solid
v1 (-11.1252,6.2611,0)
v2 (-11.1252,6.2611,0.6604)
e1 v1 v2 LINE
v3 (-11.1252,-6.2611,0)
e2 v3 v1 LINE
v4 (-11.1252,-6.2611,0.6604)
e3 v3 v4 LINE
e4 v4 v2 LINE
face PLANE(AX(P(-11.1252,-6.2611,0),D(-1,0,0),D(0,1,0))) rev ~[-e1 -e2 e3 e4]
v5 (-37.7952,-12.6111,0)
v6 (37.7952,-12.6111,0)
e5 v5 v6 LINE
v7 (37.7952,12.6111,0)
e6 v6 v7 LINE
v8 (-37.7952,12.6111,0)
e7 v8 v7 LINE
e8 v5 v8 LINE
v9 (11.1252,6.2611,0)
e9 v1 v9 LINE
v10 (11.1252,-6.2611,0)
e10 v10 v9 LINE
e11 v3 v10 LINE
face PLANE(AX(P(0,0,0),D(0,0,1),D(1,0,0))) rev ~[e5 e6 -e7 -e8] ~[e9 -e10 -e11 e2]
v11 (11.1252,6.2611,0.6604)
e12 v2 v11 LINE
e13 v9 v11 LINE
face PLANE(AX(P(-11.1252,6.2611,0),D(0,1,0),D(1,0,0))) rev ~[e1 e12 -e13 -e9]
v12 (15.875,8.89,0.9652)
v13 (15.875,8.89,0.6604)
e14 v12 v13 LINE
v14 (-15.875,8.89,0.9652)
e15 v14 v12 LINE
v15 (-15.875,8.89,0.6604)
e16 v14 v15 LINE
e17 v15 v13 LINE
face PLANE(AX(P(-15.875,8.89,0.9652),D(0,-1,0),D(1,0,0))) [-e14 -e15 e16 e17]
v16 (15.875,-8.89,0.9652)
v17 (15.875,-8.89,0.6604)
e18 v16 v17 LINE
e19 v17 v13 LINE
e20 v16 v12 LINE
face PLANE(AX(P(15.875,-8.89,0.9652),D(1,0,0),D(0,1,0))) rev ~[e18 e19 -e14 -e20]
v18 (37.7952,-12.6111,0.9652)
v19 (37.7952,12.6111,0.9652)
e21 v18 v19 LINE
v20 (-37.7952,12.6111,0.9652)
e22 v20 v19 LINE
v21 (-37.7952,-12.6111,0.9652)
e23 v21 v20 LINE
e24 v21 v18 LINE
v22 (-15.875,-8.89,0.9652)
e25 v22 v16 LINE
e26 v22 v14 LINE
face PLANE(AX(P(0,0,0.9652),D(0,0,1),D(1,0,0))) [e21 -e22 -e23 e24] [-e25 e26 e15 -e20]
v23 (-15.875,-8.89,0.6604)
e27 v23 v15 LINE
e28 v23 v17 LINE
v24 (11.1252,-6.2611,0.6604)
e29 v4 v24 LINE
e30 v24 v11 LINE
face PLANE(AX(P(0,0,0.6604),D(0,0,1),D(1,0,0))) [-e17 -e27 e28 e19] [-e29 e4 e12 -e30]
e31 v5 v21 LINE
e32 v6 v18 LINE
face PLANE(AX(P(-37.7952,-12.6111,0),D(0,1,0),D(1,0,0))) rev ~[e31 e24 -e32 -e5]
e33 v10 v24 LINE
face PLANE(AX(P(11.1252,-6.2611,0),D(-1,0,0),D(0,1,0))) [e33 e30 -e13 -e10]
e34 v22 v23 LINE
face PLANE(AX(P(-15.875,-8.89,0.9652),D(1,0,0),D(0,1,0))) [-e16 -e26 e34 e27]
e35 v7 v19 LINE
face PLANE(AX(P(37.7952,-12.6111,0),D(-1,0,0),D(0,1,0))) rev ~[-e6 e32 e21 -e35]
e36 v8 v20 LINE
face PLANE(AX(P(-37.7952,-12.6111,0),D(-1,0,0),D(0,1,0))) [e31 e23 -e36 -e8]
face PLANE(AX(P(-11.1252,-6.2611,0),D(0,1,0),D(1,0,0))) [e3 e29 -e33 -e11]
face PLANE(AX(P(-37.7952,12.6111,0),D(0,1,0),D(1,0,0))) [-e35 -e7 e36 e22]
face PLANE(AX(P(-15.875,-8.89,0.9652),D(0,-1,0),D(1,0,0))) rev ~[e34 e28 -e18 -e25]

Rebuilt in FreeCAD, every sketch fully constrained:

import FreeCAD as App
import Part
import Sketcher

V = App.Vector
Q = App.Units.Quantity


def add_polygon(sketch, points):
    """Adds a closed chain of lines whose ends are joined by coincident constraints."""
    first, n = sketch.GeometryCount, len(points)
    for a, b in zip(points, points[1:] + points[:1]):
        sketch.addGeometry(Part.LineSegment(App.Vector(*a, 0), App.Vector(*b, 0)), False)
    for i in range(n):
        sketch.addConstraint(Sketcher.Constraint("Coincident", first + i, 2, first + (i + 1) % n, 1))

doc = App.newDocument("Part")
body = doc.addObject("PartDesign::Body", "Body")

# Sketch on XY plane
sketch1 = doc.addObject("Sketcher::SketchObject", "Sketch")
body.addObject(sketch1)
sketch1.AttachmentSupport = (doc.XY_Plane, [""])
sketch1.MapMode = "FlatFace"
add_polygon(sketch1, [(-37.7952, 12.6111), (-37.7952, -12.6111), (37.7952, -12.6111), (37.7952, 12.6111)])  # lines 0-3
add_polygon(sketch1, [(11.1252, -6.2611), (-11.1252, -6.2611), (-11.1252, 6.2611), (11.1252, 6.2611)])  # lines 4-7
sketch1.addConstraint(Sketcher.Constraint("Vertical", 0))
sketch1.addConstraint(Sketcher.Constraint("Horizontal", 1))
sketch1.addConstraint(Sketcher.Constraint("Vertical", 2))
sketch1.addConstraint(Sketcher.Constraint("Horizontal", 3))
sketch1.addConstraint(Sketcher.Constraint("Horizontal", 4))
sketch1.addConstraint(Sketcher.Constraint("Vertical", 5))
sketch1.addConstraint(Sketcher.Constraint("Horizontal", 6))
sketch1.addConstraint(Sketcher.Constraint("Vertical", 7))
sketch1.addConstraint(Sketcher.Constraint("Symmetric", 0, 2, 2, 2, -1, 1))
sketch1.addConstraint(Sketcher.Constraint("Symmetric", 4, 2, 6, 2, -1, 1))
sketch1.addConstraint(Sketcher.Constraint("DistanceX", 1, 1, 1, 2, Q("2.976 in")))
sketch1.addConstraint(Sketcher.Constraint("DistanceX", 4, 2, 4, 1, Q("0.876 in")))
sketch1.addConstraint(Sketcher.Constraint("DistanceY", 0, 2, 0, 1, Q("0.993 in")))
sketch1.addConstraint(Sketcher.Constraint("DistanceY", 5, 1, 5, 2, Q("0.493 in")))
pad1 = doc.addObject("PartDesign::Pad", "Pad")
body.addObject(pad1)
pad1.Profile = sketch1
pad1.Length = Q("0.038 in")

# Sketch on XY plane
sketch2 = doc.addObject("Sketcher::SketchObject", "Sketch001")
body.addObject(sketch2)
sketch2.AttachmentSupport = (doc.XY_Plane, [""])
sketch2.MapMode = "FlatFace"
sketch2.AttachmentOffset = App.Placement(V(0, 0, 0.038 * 25.4), App.Rotation())
add_polygon(sketch2, [(-15.875, 8.89), (-15.875, -8.89), (15.875, -8.89), (15.875, 8.89)])  # lines 0-3
sketch2.addConstraint(Sketcher.Constraint("Vertical", 0))
sketch2.addConstraint(Sketcher.Constraint("Horizontal", 1))
sketch2.addConstraint(Sketcher.Constraint("Vertical", 2))
sketch2.addConstraint(Sketcher.Constraint("Horizontal", 3))
sketch2.addConstraint(Sketcher.Constraint("Symmetric", 0, 2, 2, 2, -1, 1))
sketch2.addConstraint(Sketcher.Constraint("DistanceY", 0, 2, 0, 1, Q("0.7 in")))
sketch2.addConstraint(Sketcher.Constraint("DistanceX", 1, 1, 1, 2, Q("1.25 in")))
pocket1 = doc.addObject("PartDesign::Pocket", "Pocket")
body.addObject(pocket1)
pocket1.Profile = sketch2
pocket1.Length = Q("0.012 in")

doc.recompute()
